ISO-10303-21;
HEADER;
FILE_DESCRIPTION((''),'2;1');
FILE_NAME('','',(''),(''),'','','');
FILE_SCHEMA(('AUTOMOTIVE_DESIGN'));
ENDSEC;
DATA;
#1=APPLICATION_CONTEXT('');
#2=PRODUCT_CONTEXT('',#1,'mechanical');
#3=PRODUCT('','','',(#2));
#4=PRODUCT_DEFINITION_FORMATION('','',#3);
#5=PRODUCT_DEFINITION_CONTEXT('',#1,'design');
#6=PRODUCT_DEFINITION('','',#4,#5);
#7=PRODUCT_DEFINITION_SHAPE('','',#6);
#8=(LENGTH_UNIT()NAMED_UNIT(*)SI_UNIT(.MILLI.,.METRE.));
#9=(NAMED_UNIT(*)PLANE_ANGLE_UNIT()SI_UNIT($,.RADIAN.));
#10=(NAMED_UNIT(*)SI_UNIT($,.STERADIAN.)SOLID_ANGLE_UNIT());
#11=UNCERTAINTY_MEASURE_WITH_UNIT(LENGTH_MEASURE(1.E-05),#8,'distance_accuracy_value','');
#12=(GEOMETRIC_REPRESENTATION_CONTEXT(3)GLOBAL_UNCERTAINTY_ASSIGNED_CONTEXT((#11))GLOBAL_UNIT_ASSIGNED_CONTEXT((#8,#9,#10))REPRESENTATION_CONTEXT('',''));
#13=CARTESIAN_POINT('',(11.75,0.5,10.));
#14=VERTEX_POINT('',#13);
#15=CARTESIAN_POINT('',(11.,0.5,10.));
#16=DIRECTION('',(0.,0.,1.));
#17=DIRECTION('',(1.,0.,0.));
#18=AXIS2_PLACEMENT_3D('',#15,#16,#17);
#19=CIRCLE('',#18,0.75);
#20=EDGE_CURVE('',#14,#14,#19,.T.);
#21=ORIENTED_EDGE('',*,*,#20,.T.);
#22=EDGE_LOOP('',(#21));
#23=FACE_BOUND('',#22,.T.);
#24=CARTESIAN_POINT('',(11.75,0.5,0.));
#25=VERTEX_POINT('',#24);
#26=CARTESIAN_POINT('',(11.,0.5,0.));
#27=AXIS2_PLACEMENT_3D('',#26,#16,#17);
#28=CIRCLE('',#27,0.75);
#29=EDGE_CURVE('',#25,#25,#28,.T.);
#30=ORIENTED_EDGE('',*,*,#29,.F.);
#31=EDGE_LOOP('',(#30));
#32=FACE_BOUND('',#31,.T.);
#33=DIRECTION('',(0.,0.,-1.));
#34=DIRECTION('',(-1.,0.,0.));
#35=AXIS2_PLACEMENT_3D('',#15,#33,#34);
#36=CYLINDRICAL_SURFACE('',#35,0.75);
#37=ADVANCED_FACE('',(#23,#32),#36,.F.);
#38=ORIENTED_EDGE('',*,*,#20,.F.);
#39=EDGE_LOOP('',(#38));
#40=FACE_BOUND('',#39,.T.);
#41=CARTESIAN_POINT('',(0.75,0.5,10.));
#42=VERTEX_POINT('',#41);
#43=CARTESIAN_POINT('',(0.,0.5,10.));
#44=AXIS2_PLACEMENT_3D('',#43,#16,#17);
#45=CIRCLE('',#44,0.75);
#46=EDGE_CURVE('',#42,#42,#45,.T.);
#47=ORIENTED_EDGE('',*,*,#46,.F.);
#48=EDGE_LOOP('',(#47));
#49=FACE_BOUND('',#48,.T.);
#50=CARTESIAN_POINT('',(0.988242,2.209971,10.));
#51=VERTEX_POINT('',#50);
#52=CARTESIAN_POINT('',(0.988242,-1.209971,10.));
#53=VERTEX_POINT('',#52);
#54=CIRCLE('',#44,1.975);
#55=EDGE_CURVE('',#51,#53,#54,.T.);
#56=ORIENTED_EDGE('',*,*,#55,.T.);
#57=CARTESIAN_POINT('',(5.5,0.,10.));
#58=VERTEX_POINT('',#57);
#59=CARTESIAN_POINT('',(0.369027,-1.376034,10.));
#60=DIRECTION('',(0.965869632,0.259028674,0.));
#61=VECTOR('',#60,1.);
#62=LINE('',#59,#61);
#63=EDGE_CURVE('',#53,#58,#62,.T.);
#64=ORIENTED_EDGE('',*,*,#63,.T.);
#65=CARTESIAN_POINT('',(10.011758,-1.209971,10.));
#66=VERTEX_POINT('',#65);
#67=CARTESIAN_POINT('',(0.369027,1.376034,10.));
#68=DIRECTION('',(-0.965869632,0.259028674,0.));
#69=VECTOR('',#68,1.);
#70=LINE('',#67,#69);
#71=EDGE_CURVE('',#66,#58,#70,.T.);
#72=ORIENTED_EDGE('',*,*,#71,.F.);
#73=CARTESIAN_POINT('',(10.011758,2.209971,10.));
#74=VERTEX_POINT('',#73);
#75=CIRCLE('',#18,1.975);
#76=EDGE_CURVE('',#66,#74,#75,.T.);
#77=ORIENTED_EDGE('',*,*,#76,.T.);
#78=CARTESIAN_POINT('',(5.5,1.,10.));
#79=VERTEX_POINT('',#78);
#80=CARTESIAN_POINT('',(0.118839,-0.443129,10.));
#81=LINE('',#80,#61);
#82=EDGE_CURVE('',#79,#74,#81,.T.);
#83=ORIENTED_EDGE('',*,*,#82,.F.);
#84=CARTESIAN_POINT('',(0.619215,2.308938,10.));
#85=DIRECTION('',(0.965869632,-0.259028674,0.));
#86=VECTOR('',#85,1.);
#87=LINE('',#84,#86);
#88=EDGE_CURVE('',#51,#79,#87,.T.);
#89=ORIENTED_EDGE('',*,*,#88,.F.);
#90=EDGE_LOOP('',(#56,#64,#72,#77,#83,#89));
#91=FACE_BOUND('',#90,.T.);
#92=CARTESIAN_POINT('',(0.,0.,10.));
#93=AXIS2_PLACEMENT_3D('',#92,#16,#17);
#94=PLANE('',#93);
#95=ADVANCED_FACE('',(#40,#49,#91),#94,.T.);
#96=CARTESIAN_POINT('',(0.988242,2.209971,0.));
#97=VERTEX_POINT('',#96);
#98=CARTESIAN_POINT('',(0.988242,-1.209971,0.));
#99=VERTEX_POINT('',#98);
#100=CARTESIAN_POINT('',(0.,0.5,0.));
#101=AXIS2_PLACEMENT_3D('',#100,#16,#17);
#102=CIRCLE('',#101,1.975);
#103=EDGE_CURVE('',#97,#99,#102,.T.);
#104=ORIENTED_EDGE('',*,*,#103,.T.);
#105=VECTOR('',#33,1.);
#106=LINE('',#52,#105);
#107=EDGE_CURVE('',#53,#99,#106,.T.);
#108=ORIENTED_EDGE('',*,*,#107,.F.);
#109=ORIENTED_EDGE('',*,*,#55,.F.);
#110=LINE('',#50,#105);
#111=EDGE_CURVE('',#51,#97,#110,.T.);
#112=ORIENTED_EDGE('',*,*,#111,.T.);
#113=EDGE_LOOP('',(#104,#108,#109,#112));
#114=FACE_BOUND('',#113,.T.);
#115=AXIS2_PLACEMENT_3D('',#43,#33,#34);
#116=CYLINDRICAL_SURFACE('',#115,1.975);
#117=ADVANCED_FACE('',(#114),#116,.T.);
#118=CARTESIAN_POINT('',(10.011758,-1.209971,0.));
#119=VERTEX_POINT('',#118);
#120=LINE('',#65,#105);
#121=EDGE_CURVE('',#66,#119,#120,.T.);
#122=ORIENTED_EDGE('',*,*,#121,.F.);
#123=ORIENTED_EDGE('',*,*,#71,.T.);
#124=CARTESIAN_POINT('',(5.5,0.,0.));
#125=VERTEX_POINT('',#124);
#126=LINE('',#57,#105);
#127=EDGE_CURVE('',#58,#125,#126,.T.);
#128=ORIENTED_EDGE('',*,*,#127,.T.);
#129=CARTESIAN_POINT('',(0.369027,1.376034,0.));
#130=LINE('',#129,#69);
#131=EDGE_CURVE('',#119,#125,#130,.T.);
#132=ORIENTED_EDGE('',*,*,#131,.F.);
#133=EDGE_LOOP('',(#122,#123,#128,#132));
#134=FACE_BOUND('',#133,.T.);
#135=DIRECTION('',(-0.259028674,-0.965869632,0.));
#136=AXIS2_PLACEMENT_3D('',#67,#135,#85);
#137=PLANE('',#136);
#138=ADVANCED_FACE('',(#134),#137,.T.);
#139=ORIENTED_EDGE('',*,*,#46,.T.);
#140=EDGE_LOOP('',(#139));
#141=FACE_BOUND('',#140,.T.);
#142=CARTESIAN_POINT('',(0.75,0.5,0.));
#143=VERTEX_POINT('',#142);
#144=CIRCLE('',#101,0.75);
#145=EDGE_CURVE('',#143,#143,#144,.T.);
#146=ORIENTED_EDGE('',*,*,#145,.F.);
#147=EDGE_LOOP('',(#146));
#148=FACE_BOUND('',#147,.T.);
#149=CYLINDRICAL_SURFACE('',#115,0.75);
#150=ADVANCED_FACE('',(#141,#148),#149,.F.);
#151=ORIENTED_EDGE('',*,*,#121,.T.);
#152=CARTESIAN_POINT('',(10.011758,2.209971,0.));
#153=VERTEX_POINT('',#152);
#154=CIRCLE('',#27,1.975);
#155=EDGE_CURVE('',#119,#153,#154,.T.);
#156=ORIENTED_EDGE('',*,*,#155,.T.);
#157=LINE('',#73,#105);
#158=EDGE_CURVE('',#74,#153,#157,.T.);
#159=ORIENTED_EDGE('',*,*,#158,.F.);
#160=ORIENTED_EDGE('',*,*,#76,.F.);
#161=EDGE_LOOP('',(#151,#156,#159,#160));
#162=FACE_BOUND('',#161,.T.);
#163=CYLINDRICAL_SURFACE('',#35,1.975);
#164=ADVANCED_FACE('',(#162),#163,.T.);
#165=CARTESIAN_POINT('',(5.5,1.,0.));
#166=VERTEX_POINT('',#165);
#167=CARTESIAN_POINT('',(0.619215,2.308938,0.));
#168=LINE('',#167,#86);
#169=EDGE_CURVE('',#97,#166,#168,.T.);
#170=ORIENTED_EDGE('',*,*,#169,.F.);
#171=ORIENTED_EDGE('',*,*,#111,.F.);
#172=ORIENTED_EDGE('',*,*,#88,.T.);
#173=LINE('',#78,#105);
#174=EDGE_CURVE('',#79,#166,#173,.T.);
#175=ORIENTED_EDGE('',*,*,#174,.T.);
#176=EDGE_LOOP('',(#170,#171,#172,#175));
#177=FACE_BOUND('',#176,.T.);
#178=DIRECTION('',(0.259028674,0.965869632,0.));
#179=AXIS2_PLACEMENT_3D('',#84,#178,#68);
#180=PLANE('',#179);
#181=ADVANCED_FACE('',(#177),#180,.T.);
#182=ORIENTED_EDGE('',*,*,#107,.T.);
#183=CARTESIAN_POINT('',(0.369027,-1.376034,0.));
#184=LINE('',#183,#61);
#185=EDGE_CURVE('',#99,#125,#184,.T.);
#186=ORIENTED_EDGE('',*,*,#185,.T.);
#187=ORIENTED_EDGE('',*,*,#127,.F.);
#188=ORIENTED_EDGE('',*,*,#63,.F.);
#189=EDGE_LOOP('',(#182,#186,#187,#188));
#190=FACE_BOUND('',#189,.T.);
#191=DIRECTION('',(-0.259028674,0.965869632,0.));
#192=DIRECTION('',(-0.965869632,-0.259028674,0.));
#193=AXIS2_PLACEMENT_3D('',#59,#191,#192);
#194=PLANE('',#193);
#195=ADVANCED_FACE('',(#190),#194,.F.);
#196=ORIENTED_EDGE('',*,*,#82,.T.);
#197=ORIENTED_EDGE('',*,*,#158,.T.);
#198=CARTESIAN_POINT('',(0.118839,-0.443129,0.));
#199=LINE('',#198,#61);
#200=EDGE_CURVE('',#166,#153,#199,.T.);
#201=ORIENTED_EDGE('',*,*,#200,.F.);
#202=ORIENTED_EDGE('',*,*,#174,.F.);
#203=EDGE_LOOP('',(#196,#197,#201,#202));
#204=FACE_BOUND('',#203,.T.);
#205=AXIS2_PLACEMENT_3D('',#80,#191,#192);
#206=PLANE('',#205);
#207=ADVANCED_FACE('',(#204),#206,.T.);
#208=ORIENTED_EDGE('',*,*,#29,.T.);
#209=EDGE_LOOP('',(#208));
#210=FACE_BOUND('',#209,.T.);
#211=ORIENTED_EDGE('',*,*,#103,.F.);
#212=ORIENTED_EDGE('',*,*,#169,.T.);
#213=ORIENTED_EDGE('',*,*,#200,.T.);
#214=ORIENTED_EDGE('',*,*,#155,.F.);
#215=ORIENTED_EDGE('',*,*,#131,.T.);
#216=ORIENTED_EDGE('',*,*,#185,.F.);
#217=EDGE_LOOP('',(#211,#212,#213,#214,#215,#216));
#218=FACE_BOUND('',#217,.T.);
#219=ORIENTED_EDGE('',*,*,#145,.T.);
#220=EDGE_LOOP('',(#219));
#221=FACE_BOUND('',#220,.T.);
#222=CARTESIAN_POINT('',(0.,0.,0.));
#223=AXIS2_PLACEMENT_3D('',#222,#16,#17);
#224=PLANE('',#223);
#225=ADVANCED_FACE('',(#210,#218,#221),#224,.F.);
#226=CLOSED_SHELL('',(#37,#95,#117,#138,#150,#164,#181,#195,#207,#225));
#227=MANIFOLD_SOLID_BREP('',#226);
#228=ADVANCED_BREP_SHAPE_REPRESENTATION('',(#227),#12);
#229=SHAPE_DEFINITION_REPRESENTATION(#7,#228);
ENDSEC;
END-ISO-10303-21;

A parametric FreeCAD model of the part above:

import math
import FreeCAD as App
import Part
import Sketcher

doc = App.newDocument("Part")
params = doc.addObject("Spreadsheet::Sheet", "Params")
for row, (alias, value) in enumerate([
    ("sketch1_diameter", "1.5 mm"),
    ("pad1_length", "10 mm"),
], start=1):
    params.set(f"A{row}", alias)
    params.set(f"B{row}", "=" + value)
    params.setAlias(f"B{row}", alias)

body = doc.addObject("PartDesign::Body", "Body")

sketch1 = body.newObject("Sketcher::SketchObject", "Sketch")
sketch1.AttachmentSupport = (doc.getObject("XY_Plane"), [""])
sketch1.MapMode = "FlatFace"
sketch1.addGeometry([
    Part.LineSegment(App.Vector(10, 2.2, 0), App.Vector(5.5, 1, 0)),
    Part.LineSegment(App.Vector(5.5, 1, 0), App.Vector(1, 2.2, 0)),
    Part.ArcOfCircle(Part.Circle(App.Vector(0, 0.5, 0), App.Vector(0, 0, 1), 2), math.radians(60), math.radians(300)),
    Part.LineSegment(App.Vector(1, -1.2, 0), App.Vector(5.5, 0, 0)),
    Part.LineSegment(App.Vector(5.5, 0, 0), App.Vector(10, -1.2, 0)),
    Part.ArcOfCircle(Part.Circle(App.Vector(11, 0.5, 0), App.Vector(0, 0, 1), 2), math.radians(-120), math.radians(120)),
    Part.Circle(App.Vector(0, 0.5, 0), App.Vector(0, 0, 1), 0.8),
    Part.Circle(App.Vector(11, 0.5, 0), App.Vector(0, 0, 1), 0.8),
], False)
sketch1.addConstraint([
    Sketcher.Constraint("Coincident", 0, 2, 1, 1),
    Sketcher.Constraint("Coincident", 1, 2, 2, 1),
    Sketcher.Constraint("Coincident", 2, 2, 3, 1),
    Sketcher.Constraint("Coincident", 3, 2, 4, 1),
    Sketcher.Constraint("Coincident", 4, 2, 5, 1),
    Sketcher.Constraint("Coincident", 5, 2, 0, 1),
    Sketcher.Constraint("Coincident", 6, 3, 2, 3),
    Sketcher.Constraint("Coincident", 7, 3, 5, 3),
    Sketcher.Constraint("Equal", 2, 5),
    Sketcher.Constraint("Equal", 6, 7),
    Sketcher.Constraint("PointOnObject", 2, 3, -2),
    Sketcher.Constraint("PointOnObject", 3, 2, -1),
    Sketcher.Constraint("Parallel", 0, 3),
    Sketcher.Constraint("Parallel", 1, 4),
    Sketcher.Constraint("Horizontal", 2, 3, 5, 3),
    Sketcher.Constraint("Horizontal", 2, 2, 4, 2),
    Sketcher.Constraint("Horizontal", 1, 2, 5, 2),
    Sketcher.Constraint("Vertical", 1, 2, 2, 2),
    Sketcher.Constraint("Vertical", 0, 2, 3, 2),
    Sketcher.Constraint("Diameter", 6, 1.5),
    Sketcher.Constraint("DistanceX", -1, 1, 5, 3, 11.0),
    Sketcher.Constraint("DistanceY", -1, 1, 0, 2, 1.0),
    Sketcher.Constraint("Radius", 2, 1.975),
    Sketcher.Constraint("DistanceY", -1, 1, 1, 2, 2.209971),
])
sketch1.setExpression("Constraints[19]", "Params.sketch1_diameter")
pad1 = body.newObject("PartDesign::Pad", "Pad")
pad1.Profile = sketch1
pad1.setExpression("Length", "Params.pad1_length")

doc.recompute()
